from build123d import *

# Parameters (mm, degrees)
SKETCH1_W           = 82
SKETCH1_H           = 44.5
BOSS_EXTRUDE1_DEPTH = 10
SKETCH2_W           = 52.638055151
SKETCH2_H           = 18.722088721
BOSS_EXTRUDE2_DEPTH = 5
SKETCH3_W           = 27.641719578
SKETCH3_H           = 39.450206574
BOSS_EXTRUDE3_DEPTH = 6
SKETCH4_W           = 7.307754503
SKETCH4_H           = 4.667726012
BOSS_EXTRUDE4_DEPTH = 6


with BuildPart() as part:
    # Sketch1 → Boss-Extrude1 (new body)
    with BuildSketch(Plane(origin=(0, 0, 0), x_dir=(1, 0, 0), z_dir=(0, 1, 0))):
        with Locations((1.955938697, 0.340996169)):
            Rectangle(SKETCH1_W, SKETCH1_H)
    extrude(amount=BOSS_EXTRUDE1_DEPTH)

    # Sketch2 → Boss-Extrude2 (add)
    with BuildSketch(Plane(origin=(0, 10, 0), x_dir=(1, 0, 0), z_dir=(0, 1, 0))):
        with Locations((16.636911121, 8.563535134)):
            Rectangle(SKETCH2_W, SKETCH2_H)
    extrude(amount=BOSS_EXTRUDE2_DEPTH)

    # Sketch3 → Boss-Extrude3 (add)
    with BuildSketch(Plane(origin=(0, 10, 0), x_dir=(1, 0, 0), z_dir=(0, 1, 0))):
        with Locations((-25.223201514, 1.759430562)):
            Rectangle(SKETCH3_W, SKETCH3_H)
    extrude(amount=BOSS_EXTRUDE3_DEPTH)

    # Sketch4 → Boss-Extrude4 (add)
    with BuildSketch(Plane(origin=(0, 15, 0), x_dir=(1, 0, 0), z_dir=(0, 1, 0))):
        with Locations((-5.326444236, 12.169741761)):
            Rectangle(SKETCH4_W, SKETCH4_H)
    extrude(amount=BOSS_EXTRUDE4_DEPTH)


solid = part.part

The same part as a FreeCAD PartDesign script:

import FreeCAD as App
import Part
import Sketcher
from FreeCAD import Vector
Q = App.Units.Quantity


def add_polygon(sketch, points):
    """Adds a closed chain of lines whose ends are joined by coincident constraints."""
    first, n = sketch.GeometryCount, len(points)
    for a, b in zip(points, points[1:] + points[:1]):
        sketch.addGeometry(Part.LineSegment(App.Vector(*a, 0), App.Vector(*b, 0)), False)
    for i in range(n):
        sketch.addConstraint(Sketcher.Constraint("Coincident", first + i, 2, first + (i + 1) % n, 1))

doc = App.newDocument("Part")
body = doc.addObject("PartDesign::Body", "Body")

sketch1 = doc.addObject("Sketcher::SketchObject", "Sketch")
body.addObject(sketch1)
sketch1.AttachmentSupport = (doc.XZ_Plane, [""])
sketch1.MapMode = "FlatFace"
add_polygon(sketch1, [(-39, -23), (-39, 22), (43, 22), (43, -23)])
sketch1.addConstraint([
    Sketcher.Constraint("Vertical", 0),
    Sketcher.Constraint("Horizontal", 1),
    Sketcher.Constraint("Vertical", 2),
    Sketcher.Constraint("Horizontal", 3),
    Sketcher.Constraint("DistanceX", 1, 1, 1, 2, Q("82 mm")),
    Sketcher.Constraint("DistanceY", 0, 1, 0, 2, Q("44.5 mm")),
    Sketcher.Constraint("DistanceX", 0, 2, -1, 1, Q("39.044061 mm")),
    Sketcher.Constraint("DistanceY", -1, 1, 0, 2, Q("21.909004 mm")),
])
pad1 = doc.addObject("PartDesign::Pad", "Pad")
body.addObject(pad1)
pad1.Profile = sketch1
pad1.Length = 10
pad1.Reversed = True

sketch2 = doc.addObject("Sketcher::SketchObject", "Sketch001")
body.addObject(sketch2)
sketch2.AttachmentSupport = (doc.XZ_Plane, [""])
sketch2.MapMode = "FlatFace"
sketch2.AttachmentOffset = App.Placement(Vector(0, 0, -10), App.Rotation())
add_polygon(sketch2, [(-10, -18), (-10, 1), (43, 1), (43, -18)])
sketch2.addConstraint([
    Sketcher.Constraint("Vertical", 0),
    Sketcher.Constraint("Horizontal", 1),
    Sketcher.Constraint("Vertical", 2),
    Sketcher.Constraint("Horizontal", 3),
    Sketcher.Constraint("DistanceY", 0, 1, 0, 2, Q("18.722089 mm")),
    Sketcher.Constraint("DistanceX", 1, 1, 1, 2, Q("52.638055 mm")),
    Sketcher.Constraint("DistanceY", -1, 1, 0, 2, Q("0.797509 mm")),
    Sketcher.Constraint("DistanceX", -1, 1, 1, 2, Q("42.955939 mm")),
])
pad2 = doc.addObject("PartDesign::Pad", "Pad001")
body.addObject(pad2)
pad2.Profile = sketch2
pad2.Length = 5
pad2.Reversed = True

sketch3 = doc.addObject("Sketcher::SketchObject", "Sketch002")
body.addObject(sketch3)
sketch3.AttachmentSupport = (doc.XZ_Plane, [""])
sketch3.MapMode = "FlatFace"
sketch3.AttachmentOffset = App.Placement(Vector(0, 0, -10), App.Rotation())
add_polygon(sketch3, [(-39, -21), (-39, 18), (-11, 18), (-11, -21)])
sketch3.addConstraint([
    Sketcher.Constraint("Vertical", 0),
    Sketcher.Constraint("Horizontal", 1),
    Sketcher.Constraint("Vertical", 2),
    Sketcher.Constraint("Horizontal", 3),
    Sketcher.Constraint("DistanceX", 1, 1, 1, 2, Q("27.64172 mm")),
    Sketcher.Constraint("DistanceY", 0, 1, 0, 2, Q("39.450207 mm")),
    Sketcher.Constraint("DistanceX", 0, 2, -1, 1, Q("39.044061 mm")),
    Sketcher.Constraint("DistanceY", -1, 1, 0, 2, Q("17.965673 mm")),
])
pad3 = doc.addObject("PartDesign::Pad", "Pad002")
body.addObject(pad3)
pad3.Profile = sketch3
pad3.Length = 6
pad3.Reversed = True

sketch4 = doc.addObject("Sketcher::SketchObject", "Sketch003")
body.addObject(sketch4)
sketch4.AttachmentSupport = (doc.XZ_Plane, [""])
sketch4.MapMode = "FlatFace"
sketch4.AttachmentOffset = App.Placement(Vector(0, 0, -15), App.Rotation())
add_polygon(sketch4, [(-9, -14.5), (-9, -9.8), (-1.7, -9.8), (-1.7, -14.5)])
sketch4.addConstraint([
    Sketcher.Constraint("Vertical", 0),
    Sketcher.Constraint("Horizontal", 1),
    Sketcher.Constraint("Vertical", 2),
    Sketcher.Constraint("Horizontal", 3),
    Sketcher.Constraint("DistanceX", 1, 1, 1, 2, Q("7.307755 mm")),
    Sketcher.Constraint("DistanceY", 0, 1, 0, 2, Q("4.667726 mm")),
    Sketcher.Constraint("DistanceX", 0, 2, -1, 1, Q("8.980321 mm")),
    Sketcher.Constraint("DistanceY", 0, 2, -1, 1, Q("9.835879 mm")),
])
pad4 = doc.addObject("PartDesign::Pad", "Pad003")
body.addObject(pad4)
pad4.Profile = sketch4
pad4.Length = 6
pad4.Reversed = True

doc.recompute()
